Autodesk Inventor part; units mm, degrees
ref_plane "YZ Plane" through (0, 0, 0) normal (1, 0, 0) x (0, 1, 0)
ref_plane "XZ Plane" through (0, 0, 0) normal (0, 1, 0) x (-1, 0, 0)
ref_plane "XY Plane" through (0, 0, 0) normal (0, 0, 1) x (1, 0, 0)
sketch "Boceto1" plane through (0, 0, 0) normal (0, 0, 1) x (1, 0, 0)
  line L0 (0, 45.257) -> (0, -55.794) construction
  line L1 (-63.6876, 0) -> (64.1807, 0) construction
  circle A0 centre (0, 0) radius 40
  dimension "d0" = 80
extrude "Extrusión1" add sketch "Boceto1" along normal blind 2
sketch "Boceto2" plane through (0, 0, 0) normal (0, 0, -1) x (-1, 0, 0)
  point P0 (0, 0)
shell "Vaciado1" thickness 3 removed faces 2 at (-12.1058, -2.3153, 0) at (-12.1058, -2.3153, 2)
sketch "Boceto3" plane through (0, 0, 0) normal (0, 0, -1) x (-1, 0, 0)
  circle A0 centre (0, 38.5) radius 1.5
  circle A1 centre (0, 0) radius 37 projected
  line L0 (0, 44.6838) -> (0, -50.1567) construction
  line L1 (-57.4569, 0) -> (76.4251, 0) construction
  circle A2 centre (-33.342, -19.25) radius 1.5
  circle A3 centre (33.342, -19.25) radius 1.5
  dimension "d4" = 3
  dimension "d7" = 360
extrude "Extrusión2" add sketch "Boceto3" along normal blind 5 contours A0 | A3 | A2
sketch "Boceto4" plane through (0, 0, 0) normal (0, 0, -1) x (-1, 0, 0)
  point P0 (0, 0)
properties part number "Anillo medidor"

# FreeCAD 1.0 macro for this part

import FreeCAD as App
import Part
import Sketcher

V = App.Vector


def faces_at(feature, points):
    """Names of the faces that lie closest to the given points."""
    faces = feature.Shape.Faces
    near = lambda p: min(range(len(faces)), key=lambda i: faces[i].distToShape(Part.Vertex(*p))[0])
    return sorted({f"Face{near(p) + 1}" for p in points})

doc = App.newDocument("Part")
params = doc.addObject("Spreadsheet::Sheet", "Params")
for row, (alias, value) in enumerate([
    ("sketch1_diameter", "80 mm"),
    ("pad1_length", "2 mm"),
    ("thickness_wall", "3 mm"),
    ("sketch2_diameter", "3 mm"),
    ("pad2_length", "5 mm"),
], start=1):
    params.set(f"A{row}", alias)
    params.set(f"B{row}", "=" + value)
    params.setAlias(f"B{row}", alias)

body = doc.addObject("PartDesign::Body", "Body")

sketch1 = body.newObject("Sketcher::SketchObject", "Sketch")
sketch1.AttachmentSupport = (doc.getObject("XY_Plane"), [""])
sketch1.MapMode = "FlatFace"
sketch1.addGeometry(Part.Circle(V(0, 0, 0), V(0, 0, 1), 40), False)
sketch1.addConstraint([
    Sketcher.Constraint("Coincident", 0, 3, -1, 1),
    Sketcher.Constraint("Diameter", 0, 80.0),
])
sketch1.setExpression("Constraints[1]", "Params.sketch1_diameter")
pad1 = body.newObject("PartDesign::Pad", "Pad")
pad1.Profile = sketch1
pad1.setExpression("Length", "Params.pad1_length")
doc.recompute()

thickness = body.newObject("PartDesign::Thickness", "Thickness")
thickness.Base = (pad1, faces_at(pad1, [(-12.106, -2.315, 0), (-12.106, -2.315, 2)]))
thickness.setExpression("Value", "Params.thickness_wall")
thickness.Reversed = True
thickness.Join = "Intersection"

sketch2 = body.newObject("Sketcher::SketchObject", "Sketch001")
sketch2.AttachmentSupport = (doc.getObject("XY_Plane"), [""])
sketch2.MapMode = "FlatFace"
sketch2.addGeometry([
    Part.Circle(V(0, 38.5, 0), V(0, 0, 1), 1.5),
    Part.Circle(V(-33.3, -19.2, 0), V(0, 0, 1), 1.5),
    Part.Circle(V(33.3, -19.2, 0), V(0, 0, 1), 1.5),
], False)
sketch2.addConstraint([
    Sketcher.Constraint("Equal", 0, 1),
    Sketcher.Constraint("Equal", 1, 2),
    Sketcher.Constraint("Symmetric", 1, 3, 2, 3, -2),
    Sketcher.Constraint("PointOnObject", 0, 3, -2),
    Sketcher.Constraint("Diameter", 0, 3.0),
    Sketcher.Constraint("DistanceY", -1, 1, 0, 3, 38.5),
    Sketcher.Constraint("DistanceY", 1, 3, -1, 1, 19.25),
    Sketcher.Constraint("DistanceX", 1, 3, -1, 1, 33.342),
])
sketch2.setExpression("Constraints[4]", "Params.sketch2_diameter")
pad2 = body.newObject("PartDesign::Pad", "Pad001")
pad2.Profile = sketch2
pad2.setExpression("Length", "Params.pad2_length")
pad2.Reversed = True

doc.recompute()
